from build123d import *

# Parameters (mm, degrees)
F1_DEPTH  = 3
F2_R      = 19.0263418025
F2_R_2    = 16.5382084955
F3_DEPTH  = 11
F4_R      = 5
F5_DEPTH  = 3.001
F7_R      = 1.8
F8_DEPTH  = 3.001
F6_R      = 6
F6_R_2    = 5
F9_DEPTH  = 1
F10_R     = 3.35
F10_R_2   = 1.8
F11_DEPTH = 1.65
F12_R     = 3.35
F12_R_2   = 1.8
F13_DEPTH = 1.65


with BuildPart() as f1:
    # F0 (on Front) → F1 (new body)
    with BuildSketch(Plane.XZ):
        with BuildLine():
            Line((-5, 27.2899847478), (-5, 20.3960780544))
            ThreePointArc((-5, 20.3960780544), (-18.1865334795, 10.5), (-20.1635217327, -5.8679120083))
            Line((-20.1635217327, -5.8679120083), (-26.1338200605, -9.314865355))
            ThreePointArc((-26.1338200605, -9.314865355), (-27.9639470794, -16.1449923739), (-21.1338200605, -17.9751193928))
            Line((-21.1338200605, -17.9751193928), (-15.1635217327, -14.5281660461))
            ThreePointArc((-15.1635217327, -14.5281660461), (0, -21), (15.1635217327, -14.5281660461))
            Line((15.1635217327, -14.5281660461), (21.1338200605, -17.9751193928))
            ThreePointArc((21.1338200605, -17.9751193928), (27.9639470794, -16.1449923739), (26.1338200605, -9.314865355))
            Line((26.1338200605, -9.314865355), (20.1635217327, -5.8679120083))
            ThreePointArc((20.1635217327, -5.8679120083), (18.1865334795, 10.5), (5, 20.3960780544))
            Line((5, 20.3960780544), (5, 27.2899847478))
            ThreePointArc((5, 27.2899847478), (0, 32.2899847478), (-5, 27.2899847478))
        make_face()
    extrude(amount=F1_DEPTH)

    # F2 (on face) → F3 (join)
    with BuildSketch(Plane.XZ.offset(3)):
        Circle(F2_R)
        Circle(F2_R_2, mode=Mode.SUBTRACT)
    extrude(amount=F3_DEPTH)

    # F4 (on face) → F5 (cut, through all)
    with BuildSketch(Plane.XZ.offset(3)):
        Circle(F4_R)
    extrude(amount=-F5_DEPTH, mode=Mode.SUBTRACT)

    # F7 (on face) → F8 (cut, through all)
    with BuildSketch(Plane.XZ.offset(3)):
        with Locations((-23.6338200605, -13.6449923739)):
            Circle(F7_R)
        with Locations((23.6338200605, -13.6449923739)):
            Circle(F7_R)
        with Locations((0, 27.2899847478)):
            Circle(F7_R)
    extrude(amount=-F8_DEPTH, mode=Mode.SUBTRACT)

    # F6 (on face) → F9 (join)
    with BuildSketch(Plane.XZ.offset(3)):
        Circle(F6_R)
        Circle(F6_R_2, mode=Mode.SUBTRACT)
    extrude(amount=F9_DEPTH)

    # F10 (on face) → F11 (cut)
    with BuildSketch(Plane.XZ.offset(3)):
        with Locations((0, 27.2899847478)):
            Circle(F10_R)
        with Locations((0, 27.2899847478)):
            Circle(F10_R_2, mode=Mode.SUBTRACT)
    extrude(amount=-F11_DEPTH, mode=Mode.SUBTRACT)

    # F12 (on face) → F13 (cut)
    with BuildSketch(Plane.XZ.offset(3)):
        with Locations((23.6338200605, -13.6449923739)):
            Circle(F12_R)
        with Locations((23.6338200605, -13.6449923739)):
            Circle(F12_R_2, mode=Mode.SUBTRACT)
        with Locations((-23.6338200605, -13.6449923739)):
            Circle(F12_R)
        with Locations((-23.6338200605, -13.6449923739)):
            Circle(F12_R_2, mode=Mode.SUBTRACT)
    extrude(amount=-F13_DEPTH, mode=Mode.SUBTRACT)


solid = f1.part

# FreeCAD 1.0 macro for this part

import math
import FreeCAD as App
import Part
import Sketcher

V = App.Vector
Q = App.Units.Quantity

doc = App.newDocument("Part")
body = doc.addObject("PartDesign::Body", "Body")

sketch1 = body.newObject("Sketcher::SketchObject", "Sketch")
sketch1.AttachmentSupport = (doc.getObject("XZ_Plane"), [""])
sketch1.MapMode = "FlatFace"
sketch1.addGeometry([
    Part.LineSegment(V(-5, 27.289985, 0), V(-5, 20.396078, 0)),
    Part.ArcOfCircle(Part.Circle(V(0, 0, 0), V(0, 0, 1), 21), math.radians(103.774147), math.radians(196.225853)),
    Part.LineSegment(V(-20.163522, -5.867912, 0), V(-26.13382, -9.314865, 0)),
    Part.ArcOfCircle(Part.Circle(V(-23.63382, -13.644992, 0), V(0, 0, 1), 5), math.radians(120), math.radians(300)),
    Part.LineSegment(V(-21.13382, -17.975119, 0), V(-15.163522, -14.528166, 0)),
    Part.ArcOfCircle(Part.Circle(V(0, 0, 0), V(0, 0, 1), 21), math.radians(-136.225853), math.radians(-43.774147)),
    Part.LineSegment(V(15.163522, -14.528166, 0), V(21.13382, -17.975119, 0)),
    Part.ArcOfCircle(Part.Circle(V(23.63382, -13.644992, 0), V(0, 0, 1), 5), math.radians(-120), math.radians(60)),
    Part.LineSegment(V(26.13382, -9.314865, 0), V(20.163522, -5.867912, 0)),
    Part.ArcOfCircle(Part.Circle(V(0, 0, 0), V(0, 0, 1), 21), math.radians(-16.225853), math.radians(76.225853)),
    Part.LineSegment(V(5, 20.396078, 0), V(5, 27.289985, 0)),
    Part.ArcOfCircle(Part.Circle(V(0, 27.289985, 0), V(0, 0, 1), 5), math.radians(0), math.radians(180)),
], False)
sketch1.addConstraint([
    Sketcher.Constraint("Coincident", 0, 2, 1, 1),
    Sketcher.Constraint("Coincident", 1, 2, 2, 1),
    Sketcher.Constraint("Tangent", 2, 2, 3, 1),
    Sketcher.Constraint("Tangent", 3, 2, 4, 1),
    Sketcher.Constraint("Coincident", 4, 2, 5, 1),
    Sketcher.Constraint("Coincident", 5, 2, 6, 1),
    Sketcher.Constraint("Tangent", 6, 2, 7, 1),
    Sketcher.Constraint("Tangent", 7, 2, 8, 1),
    Sketcher.Constraint("Coincident", 8, 2, 9, 1),
    Sketcher.Constraint("Coincident", 9, 2, 10, 1),
    Sketcher.Constraint("Tangent", 10, 2, 11, 1),
    Sketcher.Constraint("Tangent", 11, 2, 0, 1),
    Sketcher.Constraint("Vertical", 0),
    Sketcher.Constraint("Vertical", 10),
    Sketcher.Constraint("Coincident", 1, 3, -1, 1),
    Sketcher.Constraint("Coincident", 5, 3, -1, 1),
    Sketcher.Constraint("Coincident", 9, 3, -1, 1),
    Sketcher.Constraint("Equal", 1, 5),
    Sketcher.Constraint("Equal", 3, 7),
    Sketcher.Constraint("Equal", 5, 9),
    Sketcher.Constraint("Equal", 7, 11),
    Sketcher.Constraint("Symmetric", 3, 3, 7, 3, -2),
    Sketcher.Constraint("PointOnObject", 11, 3, -2),
    Sketcher.Constraint("Parallel", 2, 4),
    Sketcher.Constraint("Parallel", 6, 8),
    Sketcher.Constraint("Horizontal", 4, 2, 5, 2),
    Sketcher.Constraint("Equal", 2, 4),
    Sketcher.Constraint("Radius", 1, Q("21 mm")),
    Sketcher.Constraint("Radius", 3, Q("5 mm")),
    Sketcher.Constraint("Angle", 2, Q("-150 deg")),
    Sketcher.Constraint("DistanceX", 3, 3, 1, 2, Q("3.470298 mm")),
    Sketcher.Constraint("DistanceY", 0, 2, 0, 1, Q("6.893907 mm")),
])
pad1 = body.newObject("PartDesign::Pad", "Pad")
pad1.Profile = sketch1
pad1.Length = 3

sketch2 = body.newObject("Sketcher::SketchObject", "Sketch001")
sketch2.AttachmentSupport = (doc.getObject("XZ_Plane"), [""])
sketch2.MapMode = "FlatFace"
sketch2.AttachmentOffset = App.Placement(V(0, 0, 3), App.Rotation())
sketch2.addGeometry([
    Part.Circle(V(0, 0, 0), V(0, 0, 1), 19.026342),
    Part.Circle(V(0, 0, 0), V(0, 0, 1), 16.538208),
], False)
sketch2.addConstraint([
    Sketcher.Constraint("Coincident", 0, 3, -1, 1),
    Sketcher.Constraint("Coincident", 1, 3, -1, 1),
    Sketcher.Constraint("Diameter", 0, Q("38.052684 mm")),
    Sketcher.Constraint("Diameter", 1, Q("33.076417 mm")),
])
pad2 = body.newObject("PartDesign::Pad", "Pad001")
pad2.Profile = sketch2
pad2.Length = 11

sketch3 = body.newObject("Sketcher::SketchObject", "Sketch002")
sketch3.AttachmentSupport = (doc.getObject("XZ_Plane"), [""])
sketch3.MapMode = "FlatFace"
sketch3.AttachmentOffset = App.Placement(V(0, 0, 3), App.Rotation())
sketch3.addGeometry(Part.Circle(V(0, 0, 0), V(0, 0, 1), 5), False)
sketch3.addConstraint([
    Sketcher.Constraint("Coincident", 0, 3, -1, 1),
    Sketcher.Constraint("Diameter", 0, Q("10 mm")),
])
pocket1 = body.newObject("PartDesign::Pocket", "Pocket")
pocket1.Profile = sketch3
pocket1.Type = "ThroughAll"

sketch4 = body.newObject("Sketcher::SketchObject", "Sketch003")
sketch4.AttachmentSupport = (doc.getObject("XZ_Plane"), [""])
sketch4.MapMode = "FlatFace"
sketch4.AttachmentOffset = App.Placement(V(0, 0, 3), App.Rotation())
sketch4.addGeometry([
    Part.Circle(V(-23.63382, -13.644992, 0), V(0, 0, 1), 1.8),
    Part.Circle(V(23.63382, -13.644992, 0), V(0, 0, 1), 1.8),
    Part.Circle(V(0, 27.289985, 0), V(0, 0, 1), 1.8),
], False)
sketch4.addConstraint([
    Sketcher.Constraint("Equal", 0, 1),
    Sketcher.Constraint("Equal", 1, 2),
    Sketcher.Constraint("Symmetric", 0, 3, 1, 3, -2),
    Sketcher.Constraint("PointOnObject", 2, 3, -2),
    Sketcher.Constraint("Diameter", 0, Q("3.6 mm")),
    Sketcher.Constraint("DistanceX", 0, 3, -1, 1, Q("23.63382 mm")),
    Sketcher.Constraint("DistanceY", 0, 3, -1, 1, Q("13.644992 mm")),
    Sketcher.Constraint("DistanceY", -1, 1, 2, 3, Q("27.289985 mm")),
])
pocket2 = body.newObject("PartDesign::Pocket", "Pocket001")
pocket2.Profile = sketch4
pocket2.Type = "ThroughAll"

sketch5 = body.newObject("Sketcher::SketchObject", "Sketch004")
sketch5.AttachmentSupport = (doc.getObject("XZ_Plane"), [""])
sketch5.MapMode = "FlatFace"
sketch5.AttachmentOffset = App.Placement(V(0, 0, 3), App.Rotation())
sketch5.addGeometry([
    Part.Circle(V(0, 0, 0), V(0, 0, 1), 6),
    Part.Circle(V(0, 0, 0), V(0, 0, 1), 5),
], False)
sketch5.addConstraint([
    Sketcher.Constraint("Coincident", 0, 3, -1, 1),
    Sketcher.Constraint("Coincident", 1, 3, -1, 1),
    Sketcher.Constraint("Diameter", 0, Q("12 mm")),
    Sketcher.Constraint("Diameter", 1, Q("10 mm")),
])
pad3 = body.newObject("PartDesign::Pad", "Pad002")
pad3.Profile = sketch5
pad3.Length = 1

sketch6 = body.newObject("Sketcher::SketchObject", "Sketch005")
sketch6.AttachmentSupport = (doc.getObject("XZ_Plane"), [""])
sketch6.MapMode = "FlatFace"
sketch6.AttachmentOffset = App.Placement(V(0, 0, 3), App.Rotation())
sketch6.addGeometry([
    Part.Circle(V(0, 27.289985, 0), V(0, 0, 1), 3.35),
    Part.Circle(V(0, 27.289985, 0), V(0, 0, 1), 1.8),
], False)
sketch6.addConstraint([
    Sketcher.Constraint("Coincident", 1, 3, 0, 3),
    Sketcher.Constraint("PointOnObject", 0, 3, -2),
    Sketcher.Constraint("Diameter", 0, Q("6.7 mm")),
    Sketcher.Constraint("Diameter", 1, Q("3.6 mm")),
    Sketcher.Constraint("DistanceY", -1, 1, 0, 3, Q("27.289985 mm")),
])
pocket3 = body.newObject("PartDesign::Pocket", "Pocket002")
pocket3.Profile = sketch6
pocket3.Length = 1.65

sketch7 = body.newObject("Sketcher::SketchObject", "Sketch006")
sketch7.AttachmentSupport = (doc.getObject("XZ_Plane"), [""])
sketch7.MapMode = "FlatFace"
sketch7.AttachmentOffset = App.Placement(V(0, 0, 3), App.Rotation())
sketch7.addGeometry([
    Part.Circle(V(23.63382, -13.644992, 0), V(0, 0, 1), 3.35),
    Part.Circle(V(23.63382, -13.644992, 0), V(0, 0, 1), 1.8),
    Part.Circle(V(-23.63382, -13.644992, 0), V(0, 0, 1), 3.35),
    Part.Circle(V(-23.63382, -13.644992, 0), V(0, 0, 1), 1.8),
], False)
sketch7.addConstraint([
    Sketcher.Constraint("Coincident", 1, 3, 0, 3),
    Sketcher.Constraint("Coincident", 3, 3, 2, 3),
    Sketcher.Constraint("Equal", 0, 2),
    Sketcher.Constraint("Equal", 1, 3),
    Sketcher.Constraint("Symmetric", 0, 3, 2, 3, -2),
    Sketcher.Constraint("Diameter", 0, Q("6.7 mm")),
    Sketcher.Constraint("Diameter", 1, Q("3.6 mm")),
    Sketcher.Constraint("DistanceX", -1, 1, 0, 3, Q("23.63382 mm")),
    Sketcher.Constraint("DistanceY", 0, 3, -1, 1, Q("13.644992 mm")),
])
pocket4 = body.newObject("PartDesign::Pocket", "Pocket003")
pocket4.Profile = sketch7
pocket4.Length = 1.65

doc.recompute()
